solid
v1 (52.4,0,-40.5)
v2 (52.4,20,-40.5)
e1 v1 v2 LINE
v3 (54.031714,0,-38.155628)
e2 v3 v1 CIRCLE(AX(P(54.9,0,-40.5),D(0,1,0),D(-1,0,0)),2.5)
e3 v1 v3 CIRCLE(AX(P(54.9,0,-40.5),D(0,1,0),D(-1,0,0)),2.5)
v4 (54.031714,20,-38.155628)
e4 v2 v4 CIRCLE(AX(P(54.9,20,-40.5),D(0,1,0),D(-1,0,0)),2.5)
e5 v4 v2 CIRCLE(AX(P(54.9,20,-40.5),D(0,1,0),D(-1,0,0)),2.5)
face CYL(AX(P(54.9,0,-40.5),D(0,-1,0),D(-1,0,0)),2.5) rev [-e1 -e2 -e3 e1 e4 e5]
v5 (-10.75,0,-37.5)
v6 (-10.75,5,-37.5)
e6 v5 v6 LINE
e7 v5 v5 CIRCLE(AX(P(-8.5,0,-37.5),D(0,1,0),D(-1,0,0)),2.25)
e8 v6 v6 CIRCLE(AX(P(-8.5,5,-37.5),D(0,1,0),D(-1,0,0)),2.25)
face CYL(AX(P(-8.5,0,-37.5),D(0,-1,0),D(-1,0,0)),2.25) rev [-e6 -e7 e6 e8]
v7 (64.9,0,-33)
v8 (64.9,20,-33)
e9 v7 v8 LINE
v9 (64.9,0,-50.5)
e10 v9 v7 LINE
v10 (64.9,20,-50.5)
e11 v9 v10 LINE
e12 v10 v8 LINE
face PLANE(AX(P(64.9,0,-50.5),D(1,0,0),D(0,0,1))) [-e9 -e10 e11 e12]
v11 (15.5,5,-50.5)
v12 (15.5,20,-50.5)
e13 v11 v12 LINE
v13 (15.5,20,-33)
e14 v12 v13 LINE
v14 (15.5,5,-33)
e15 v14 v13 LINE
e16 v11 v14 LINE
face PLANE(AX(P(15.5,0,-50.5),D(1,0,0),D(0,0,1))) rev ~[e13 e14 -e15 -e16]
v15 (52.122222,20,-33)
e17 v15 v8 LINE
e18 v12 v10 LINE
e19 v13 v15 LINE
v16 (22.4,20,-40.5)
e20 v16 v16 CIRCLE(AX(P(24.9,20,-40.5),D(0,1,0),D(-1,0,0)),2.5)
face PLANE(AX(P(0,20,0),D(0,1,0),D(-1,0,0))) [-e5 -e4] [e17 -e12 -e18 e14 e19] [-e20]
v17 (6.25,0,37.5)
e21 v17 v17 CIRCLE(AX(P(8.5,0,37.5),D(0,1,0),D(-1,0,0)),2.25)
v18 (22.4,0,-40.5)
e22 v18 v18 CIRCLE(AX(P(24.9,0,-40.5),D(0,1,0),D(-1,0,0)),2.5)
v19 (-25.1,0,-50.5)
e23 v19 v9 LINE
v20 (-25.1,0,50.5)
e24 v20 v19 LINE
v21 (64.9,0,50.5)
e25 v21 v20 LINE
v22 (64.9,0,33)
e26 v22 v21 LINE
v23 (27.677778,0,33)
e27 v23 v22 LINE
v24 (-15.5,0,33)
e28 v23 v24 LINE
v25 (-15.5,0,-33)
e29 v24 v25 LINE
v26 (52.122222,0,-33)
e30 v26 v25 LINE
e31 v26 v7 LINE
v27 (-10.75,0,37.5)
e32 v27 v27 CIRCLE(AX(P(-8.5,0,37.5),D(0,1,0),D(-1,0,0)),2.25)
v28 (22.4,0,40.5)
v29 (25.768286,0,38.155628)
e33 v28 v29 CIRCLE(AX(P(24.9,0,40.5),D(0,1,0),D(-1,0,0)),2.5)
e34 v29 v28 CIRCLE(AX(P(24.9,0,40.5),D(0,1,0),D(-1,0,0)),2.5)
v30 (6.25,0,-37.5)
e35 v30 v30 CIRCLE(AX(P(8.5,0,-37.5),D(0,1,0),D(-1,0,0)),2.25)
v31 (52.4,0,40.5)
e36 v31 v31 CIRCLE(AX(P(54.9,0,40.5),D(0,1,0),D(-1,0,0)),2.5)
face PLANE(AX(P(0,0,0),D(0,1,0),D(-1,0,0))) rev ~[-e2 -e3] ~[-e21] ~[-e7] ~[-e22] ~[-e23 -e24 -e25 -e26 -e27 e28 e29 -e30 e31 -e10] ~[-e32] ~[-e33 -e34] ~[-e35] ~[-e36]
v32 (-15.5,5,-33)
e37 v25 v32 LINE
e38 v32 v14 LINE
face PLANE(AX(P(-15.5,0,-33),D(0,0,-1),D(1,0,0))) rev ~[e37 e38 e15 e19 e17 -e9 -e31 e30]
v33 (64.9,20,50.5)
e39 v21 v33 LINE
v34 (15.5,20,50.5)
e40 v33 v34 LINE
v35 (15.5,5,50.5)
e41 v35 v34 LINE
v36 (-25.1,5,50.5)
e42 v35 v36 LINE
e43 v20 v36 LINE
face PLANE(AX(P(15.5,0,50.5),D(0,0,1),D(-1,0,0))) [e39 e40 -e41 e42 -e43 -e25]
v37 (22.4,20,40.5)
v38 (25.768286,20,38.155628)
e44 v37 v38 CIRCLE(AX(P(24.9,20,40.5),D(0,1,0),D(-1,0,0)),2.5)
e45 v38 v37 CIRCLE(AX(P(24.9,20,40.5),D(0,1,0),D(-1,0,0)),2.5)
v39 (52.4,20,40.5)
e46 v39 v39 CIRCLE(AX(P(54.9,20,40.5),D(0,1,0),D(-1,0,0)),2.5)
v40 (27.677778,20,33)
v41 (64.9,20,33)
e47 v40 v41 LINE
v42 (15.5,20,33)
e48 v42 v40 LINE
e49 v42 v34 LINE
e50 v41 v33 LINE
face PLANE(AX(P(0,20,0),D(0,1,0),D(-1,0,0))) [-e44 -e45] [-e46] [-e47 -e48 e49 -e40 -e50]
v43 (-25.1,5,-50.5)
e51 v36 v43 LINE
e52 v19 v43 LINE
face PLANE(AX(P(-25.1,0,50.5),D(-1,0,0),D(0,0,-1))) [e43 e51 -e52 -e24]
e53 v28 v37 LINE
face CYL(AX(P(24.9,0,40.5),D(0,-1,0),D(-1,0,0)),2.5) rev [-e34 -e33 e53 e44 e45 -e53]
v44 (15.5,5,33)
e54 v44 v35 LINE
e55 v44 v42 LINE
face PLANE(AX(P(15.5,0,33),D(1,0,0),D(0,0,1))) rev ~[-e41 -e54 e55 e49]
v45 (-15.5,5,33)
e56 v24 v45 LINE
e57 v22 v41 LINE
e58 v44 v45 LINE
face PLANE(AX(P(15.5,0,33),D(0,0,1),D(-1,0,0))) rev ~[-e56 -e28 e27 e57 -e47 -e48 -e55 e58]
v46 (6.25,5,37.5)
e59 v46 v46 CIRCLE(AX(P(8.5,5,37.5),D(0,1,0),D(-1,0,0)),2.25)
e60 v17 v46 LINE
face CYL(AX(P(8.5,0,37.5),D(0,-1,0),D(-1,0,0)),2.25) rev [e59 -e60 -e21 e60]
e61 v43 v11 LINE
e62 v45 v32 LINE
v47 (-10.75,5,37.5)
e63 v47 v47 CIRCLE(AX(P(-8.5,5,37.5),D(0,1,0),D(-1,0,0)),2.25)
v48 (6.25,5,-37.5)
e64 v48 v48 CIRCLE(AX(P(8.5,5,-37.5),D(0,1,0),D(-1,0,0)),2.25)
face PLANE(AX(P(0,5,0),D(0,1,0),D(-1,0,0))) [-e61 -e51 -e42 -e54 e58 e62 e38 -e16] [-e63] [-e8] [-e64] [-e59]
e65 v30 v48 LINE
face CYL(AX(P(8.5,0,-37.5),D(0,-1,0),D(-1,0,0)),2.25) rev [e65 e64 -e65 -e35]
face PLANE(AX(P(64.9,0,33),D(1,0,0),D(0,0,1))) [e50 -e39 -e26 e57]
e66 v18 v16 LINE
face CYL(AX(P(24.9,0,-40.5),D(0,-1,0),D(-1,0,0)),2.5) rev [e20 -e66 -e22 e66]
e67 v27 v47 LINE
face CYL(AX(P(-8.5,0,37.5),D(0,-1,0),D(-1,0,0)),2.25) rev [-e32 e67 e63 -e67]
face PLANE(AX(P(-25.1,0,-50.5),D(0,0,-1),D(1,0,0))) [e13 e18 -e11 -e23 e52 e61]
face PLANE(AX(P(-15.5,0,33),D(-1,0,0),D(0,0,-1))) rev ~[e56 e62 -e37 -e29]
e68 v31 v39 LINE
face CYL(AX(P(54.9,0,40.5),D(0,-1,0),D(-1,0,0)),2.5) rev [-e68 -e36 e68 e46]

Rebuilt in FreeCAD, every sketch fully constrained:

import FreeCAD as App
import Part
import Sketcher
Q = App.Units.Quantity

doc = App.newDocument("Part")
body = doc.addObject("PartDesign::Body", "Body")

# Sketch on XZ plane
sketch1 = doc.addObject("Sketcher::SketchObject", "Sketch")
body.addObject(sketch1)
sketch1.AttachmentSupport = (doc.XZ_Plane, [""])
sketch1.MapMode = "FlatFace"
sketch1.addGeometry(Part.LineSegment(App.Vector(15.5, 33, 0), App.Vector(-15.5, 33, 0)), False)
sketch1.addGeometry(Part.LineSegment(App.Vector(-15.5, 33, 0), App.Vector(-15.5, -33, 0)), False)
sketch1.addGeometry(Part.LineSegment(App.Vector(-15.5, -33, 0), App.Vector(15.5, -33, 0)), False)
sketch1.addGeometry(Part.LineSegment(App.Vector(15.5, -33, 0), App.Vector(15.5, -50.5, 0)), False)
sketch1.addGeometry(Part.LineSegment(App.Vector(15.5, -50.5, 0), App.Vector(-25.1, -50.5, 0)), False)
sketch1.addGeometry(Part.LineSegment(App.Vector(-25.1, -50.5, 0), App.Vector(-25.1, 50.5, 0)), False)
sketch1.addGeometry(Part.LineSegment(App.Vector(-25.1, 50.5, 0), App.Vector(15.5, 50.5, 0)), False)
sketch1.addGeometry(Part.LineSegment(App.Vector(15.5, 50.5, 0), App.Vector(15.5, 33, 0)), False)
sketch1.addGeometry(Part.Circle(App.Vector(8.5, -37.5, 0), App.Vector(0, 0, 1), 2.2), False)
sketch1.addGeometry(Part.Circle(App.Vector(-8.5, -37.5, 0), App.Vector(0, 0, 1), 2.2), False)
sketch1.addGeometry(Part.Circle(App.Vector(8.5, 37.5, 0), App.Vector(0, 0, 1), 2.2), False)
sketch1.addGeometry(Part.Circle(App.Vector(-8.5, 37.5, 0), App.Vector(0, 0, 1), 2.2), False)
sketch1.addConstraint(Sketcher.Constraint("Coincident", 0, 2, 1, 1))
sketch1.addConstraint(Sketcher.Constraint("Coincident", 1, 2, 2, 1))
sketch1.addConstraint(Sketcher.Constraint("Coincident", 2, 2, 3, 1))
sketch1.addConstraint(Sketcher.Constraint("Coincident", 3, 2, 4, 1))
sketch1.addConstraint(Sketcher.Constraint("Coincident", 4, 2, 5, 1))
sketch1.addConstraint(Sketcher.Constraint("Coincident", 5, 2, 6, 1))
sketch1.addConstraint(Sketcher.Constraint("Coincident", 6, 2, 7, 1))
sketch1.addConstraint(Sketcher.Constraint("Coincident", 7, 2, 0, 1))
sketch1.addConstraint(Sketcher.Constraint("Horizontal", 0))
sketch1.addConstraint(Sketcher.Constraint("Vertical", 1))
sketch1.addConstraint(Sketcher.Constraint("Horizontal", 2))
sketch1.addConstraint(Sketcher.Constraint("Vertical", 3))
sketch1.addConstraint(Sketcher.Constraint("Horizontal", 4))
sketch1.addConstraint(Sketcher.Constraint("Vertical", 5))
sketch1.addConstraint(Sketcher.Constraint("Horizontal", 6))
sketch1.addConstraint(Sketcher.Constraint("Vertical", 7))
sketch1.addConstraint(Sketcher.Constraint("Equal", 8, 9))
sketch1.addConstraint(Sketcher.Constraint("Equal", 9, 10))
sketch1.addConstraint(Sketcher.Constraint("Equal", 10, 11))
sketch1.addConstraint(Sketcher.Constraint("Symmetric", 9, 3, 10, 3, -1, 1))
sketch1.addConstraint(Sketcher.Constraint("Symmetric", 8, 3, 11, 3, -1, 1))
sketch1.addConstraint(Sketcher.Constraint("Symmetric", 0, 2, 2, 2, -1, 1))
sketch1.addConstraint(Sketcher.Constraint("Symmetric", 8, 3, 9, 3, -2))
sketch1.addConstraint(Sketcher.Constraint("Symmetric", 3, 2, 6, 2, -1))
sketch1.addConstraint(Sketcher.Constraint("Diameter", 8, Q("4.5 mm")))
sketch1.addConstraint(Sketcher.Constraint("DistanceX", 0, 2, 0, 1, Q("31 mm")))
sketch1.addConstraint(Sketcher.Constraint("DistanceX", 9, 3, 8, 3, Q("17 mm")))
sketch1.addConstraint(Sketcher.Constraint("DistanceY", 8, 3, 10, 3, Q("75 mm")))
sketch1.addConstraint(Sketcher.Constraint("DistanceY", 0, 2, 11, 3, Q("4.5 mm")))
sketch1.addConstraint(Sketcher.Constraint("DistanceY", 5, 1, 5, 2, Q("101 mm")))
sketch1.addConstraint(Sketcher.Constraint("DistanceX", 4, 2, 4, 1, Q("40.6 mm")))
pad1 = doc.addObject("PartDesign::Pad", "Pad")
body.addObject(pad1)
pad1.Profile = sketch1
pad1.Length = 5
pad1.Reversed = True

# Sketch on XZ plane
sketch2 = doc.addObject("Sketcher::SketchObject", "Sketch001")
body.addObject(sketch2)
sketch2.AttachmentSupport = (doc.XZ_Plane, [""])
sketch2.MapMode = "FlatFace"
sketch2.addGeometry(Part.LineSegment(App.Vector(27.7, 33, 0), App.Vector(15.5, 33, 0)), False)
sketch2.addGeometry(Part.LineSegment(App.Vector(15.5, 33, 0), App.Vector(15.5, 50.5, 0)), False)
sketch2.addGeometry(Part.LineSegment(App.Vector(15.5, 50.5, 0), App.Vector(64.9, 50.5, 0)), False)
sketch2.addGeometry(Part.LineSegment(App.Vector(64.9, 50.5, 0), App.Vector(64.9, 33, 0)), False)
sketch2.addGeometry(Part.LineSegment(App.Vector(64.9, 33, 0), App.Vector(27.7, 33, 0)), False)
sketch2.addGeometry(Part.Circle(App.Vector(54.9, 40.5, 0), App.Vector(0, 0, 1), 2.5), False)
sketch2.addGeometry(Part.Circle(App.Vector(24.9, 40.5, 0), App.Vector(0, 0, 1), 2.5), False)
sketch2.addGeometry(Part.LineSegment(App.Vector(15.5, -50.5, 0), App.Vector(15.5, -33, 0)), False)
sketch2.addGeometry(Part.LineSegment(App.Vector(15.5, -33, 0), App.Vector(52.1, -33, 0)), False)
sketch2.addGeometry(Part.LineSegment(App.Vector(52.1, -33, 0), App.Vector(64.9, -33, 0)), False)
sketch2.addGeometry(Part.LineSegment(App.Vector(64.9, -33, 0), App.Vector(64.9, -50.5, 0)), False)
sketch2.addGeometry(Part.LineSegment(App.Vector(64.9, -50.5, 0), App.Vector(15.5, -50.5, 0)), False)
sketch2.addGeometry(Part.Circle(App.Vector(54.9, -40.5, 0), App.Vector(0, 0, 1), 2.5), False)
sketch2.addGeometry(Part.Circle(App.Vector(24.9, -40.5, 0), App.Vector(0, 0, 1), 2.5), False)
sketch2.addConstraint(Sketcher.Constraint("Coincident", 0, 2, 1, 1))
sketch2.addConstraint(Sketcher.Constraint("Coincident", 1, 2, 2, 1))
sketch2.addConstraint(Sketcher.Constraint("Coincident", 2, 2, 3, 1))
sketch2.addConstraint(Sketcher.Constraint("Coincident", 3, 2, 4, 1))
sketch2.addConstraint(Sketcher.Constraint("Coincident", 4, 2, 0, 1))
sketch2.addConstraint(Sketcher.Constraint("Coincident", 7, 2, 8, 1))
sketch2.addConstraint(Sketcher.Constraint("Coincident", 8, 2, 9, 1))
sketch2.addConstraint(Sketcher.Constraint("Coincident", 9, 2, 10, 1))
sketch2.addConstraint(Sketcher.Constraint("Coincident", 10, 2, 11, 1))
sketch2.addConstraint(Sketcher.Constraint("Coincident", 11, 2, 7, 1))
sketch2.addConstraint(Sketcher.Constraint("Horizontal", 0))
sketch2.addConstraint(Sketcher.Constraint("Vertical", 1))
sketch2.addConstraint(Sketcher.Constraint("Horizontal", 2))
sketch2.addConstraint(Sketcher.Constraint("Vertical", 3))
sketch2.addConstraint(Sketcher.Constraint("Horizontal", 4))
sketch2.addConstraint(Sketcher.Constraint("Vertical", 7))
sketch2.addConstraint(Sketcher.Constraint("Horizontal", 8))
sketch2.addConstraint(Sketcher.Constraint("Horizontal", 9))
sketch2.addConstraint(Sketcher.Constraint("Vertical", 10))
sketch2.addConstraint(Sketcher.Constraint("Horizontal", 11))
sketch2.addConstraint(Sketcher.Constraint("Equal", 5, 6))
sketch2.addConstraint(Sketcher.Constraint("Equal", 6, 12))
sketch2.addConstraint(Sketcher.Constraint("Equal", 12, 13))
sketch2.addConstraint(Sketcher.Constraint("Symmetric", 5, 3, 12, 3, -1))
sketch2.addConstraint(Sketcher.Constraint("Symmetric", 6, 3, 13, 3, -1))
sketch2.addConstraint(Sketcher.Constraint("Symmetric", 0, 2, 7, 2, -1))
sketch2.addConstraint(Sketcher.Constraint("Symmetric", 2, 2, 10, 2, -1))
sketch2.addConstraint(Sketcher.Constraint("Horizontal", 5, 3, 6, 3))
sketch2.addConstraint(Sketcher.Constraint("Diameter", 5, Q("5 mm")))
sketch2.addConstraint(Sketcher.Constraint("DistanceX", 6, 3, 5, 3, Q("30 mm")))
sketch2.addConstraint(Sketcher.Constraint("DistanceY", 6, 3, 1, 2, Q("10 mm")))
sketch2.addConstraint(Sketcher.Constraint("DistanceX", 5, 3, 2, 2, Q("10 mm")))
sketch2.addConstraint(Sketcher.Constraint("DistanceX", 2, 1, 2, 2, Q("49.4 mm")))
sketch2.addConstraint(Sketcher.Constraint("DistanceY", 1, 1, 1, 2, Q("17.5 mm")))
sketch2.addConstraint(Sketcher.Constraint("DistanceY", -1, 1, 0, 2, Q("33 mm")))
sketch2.addConstraint(Sketcher.Constraint("DistanceX", -1, 1, 5, 3, Q("54.9 mm")))
sketch2.addConstraint(Sketcher.Constraint("DistanceX", 0, 2, 0, 1, Q("12.1778 mm")))
sketch2.addConstraint(Sketcher.Constraint("DistanceX", 8, 1, 8, 2, Q("36.6222 mm")))
pad2 = doc.addObject("PartDesign::Pad", "Pad001")
body.addObject(pad2)
pad2.Profile = sketch2
pad2.Length = 20
pad2.Reversed = True

doc.recompute()
